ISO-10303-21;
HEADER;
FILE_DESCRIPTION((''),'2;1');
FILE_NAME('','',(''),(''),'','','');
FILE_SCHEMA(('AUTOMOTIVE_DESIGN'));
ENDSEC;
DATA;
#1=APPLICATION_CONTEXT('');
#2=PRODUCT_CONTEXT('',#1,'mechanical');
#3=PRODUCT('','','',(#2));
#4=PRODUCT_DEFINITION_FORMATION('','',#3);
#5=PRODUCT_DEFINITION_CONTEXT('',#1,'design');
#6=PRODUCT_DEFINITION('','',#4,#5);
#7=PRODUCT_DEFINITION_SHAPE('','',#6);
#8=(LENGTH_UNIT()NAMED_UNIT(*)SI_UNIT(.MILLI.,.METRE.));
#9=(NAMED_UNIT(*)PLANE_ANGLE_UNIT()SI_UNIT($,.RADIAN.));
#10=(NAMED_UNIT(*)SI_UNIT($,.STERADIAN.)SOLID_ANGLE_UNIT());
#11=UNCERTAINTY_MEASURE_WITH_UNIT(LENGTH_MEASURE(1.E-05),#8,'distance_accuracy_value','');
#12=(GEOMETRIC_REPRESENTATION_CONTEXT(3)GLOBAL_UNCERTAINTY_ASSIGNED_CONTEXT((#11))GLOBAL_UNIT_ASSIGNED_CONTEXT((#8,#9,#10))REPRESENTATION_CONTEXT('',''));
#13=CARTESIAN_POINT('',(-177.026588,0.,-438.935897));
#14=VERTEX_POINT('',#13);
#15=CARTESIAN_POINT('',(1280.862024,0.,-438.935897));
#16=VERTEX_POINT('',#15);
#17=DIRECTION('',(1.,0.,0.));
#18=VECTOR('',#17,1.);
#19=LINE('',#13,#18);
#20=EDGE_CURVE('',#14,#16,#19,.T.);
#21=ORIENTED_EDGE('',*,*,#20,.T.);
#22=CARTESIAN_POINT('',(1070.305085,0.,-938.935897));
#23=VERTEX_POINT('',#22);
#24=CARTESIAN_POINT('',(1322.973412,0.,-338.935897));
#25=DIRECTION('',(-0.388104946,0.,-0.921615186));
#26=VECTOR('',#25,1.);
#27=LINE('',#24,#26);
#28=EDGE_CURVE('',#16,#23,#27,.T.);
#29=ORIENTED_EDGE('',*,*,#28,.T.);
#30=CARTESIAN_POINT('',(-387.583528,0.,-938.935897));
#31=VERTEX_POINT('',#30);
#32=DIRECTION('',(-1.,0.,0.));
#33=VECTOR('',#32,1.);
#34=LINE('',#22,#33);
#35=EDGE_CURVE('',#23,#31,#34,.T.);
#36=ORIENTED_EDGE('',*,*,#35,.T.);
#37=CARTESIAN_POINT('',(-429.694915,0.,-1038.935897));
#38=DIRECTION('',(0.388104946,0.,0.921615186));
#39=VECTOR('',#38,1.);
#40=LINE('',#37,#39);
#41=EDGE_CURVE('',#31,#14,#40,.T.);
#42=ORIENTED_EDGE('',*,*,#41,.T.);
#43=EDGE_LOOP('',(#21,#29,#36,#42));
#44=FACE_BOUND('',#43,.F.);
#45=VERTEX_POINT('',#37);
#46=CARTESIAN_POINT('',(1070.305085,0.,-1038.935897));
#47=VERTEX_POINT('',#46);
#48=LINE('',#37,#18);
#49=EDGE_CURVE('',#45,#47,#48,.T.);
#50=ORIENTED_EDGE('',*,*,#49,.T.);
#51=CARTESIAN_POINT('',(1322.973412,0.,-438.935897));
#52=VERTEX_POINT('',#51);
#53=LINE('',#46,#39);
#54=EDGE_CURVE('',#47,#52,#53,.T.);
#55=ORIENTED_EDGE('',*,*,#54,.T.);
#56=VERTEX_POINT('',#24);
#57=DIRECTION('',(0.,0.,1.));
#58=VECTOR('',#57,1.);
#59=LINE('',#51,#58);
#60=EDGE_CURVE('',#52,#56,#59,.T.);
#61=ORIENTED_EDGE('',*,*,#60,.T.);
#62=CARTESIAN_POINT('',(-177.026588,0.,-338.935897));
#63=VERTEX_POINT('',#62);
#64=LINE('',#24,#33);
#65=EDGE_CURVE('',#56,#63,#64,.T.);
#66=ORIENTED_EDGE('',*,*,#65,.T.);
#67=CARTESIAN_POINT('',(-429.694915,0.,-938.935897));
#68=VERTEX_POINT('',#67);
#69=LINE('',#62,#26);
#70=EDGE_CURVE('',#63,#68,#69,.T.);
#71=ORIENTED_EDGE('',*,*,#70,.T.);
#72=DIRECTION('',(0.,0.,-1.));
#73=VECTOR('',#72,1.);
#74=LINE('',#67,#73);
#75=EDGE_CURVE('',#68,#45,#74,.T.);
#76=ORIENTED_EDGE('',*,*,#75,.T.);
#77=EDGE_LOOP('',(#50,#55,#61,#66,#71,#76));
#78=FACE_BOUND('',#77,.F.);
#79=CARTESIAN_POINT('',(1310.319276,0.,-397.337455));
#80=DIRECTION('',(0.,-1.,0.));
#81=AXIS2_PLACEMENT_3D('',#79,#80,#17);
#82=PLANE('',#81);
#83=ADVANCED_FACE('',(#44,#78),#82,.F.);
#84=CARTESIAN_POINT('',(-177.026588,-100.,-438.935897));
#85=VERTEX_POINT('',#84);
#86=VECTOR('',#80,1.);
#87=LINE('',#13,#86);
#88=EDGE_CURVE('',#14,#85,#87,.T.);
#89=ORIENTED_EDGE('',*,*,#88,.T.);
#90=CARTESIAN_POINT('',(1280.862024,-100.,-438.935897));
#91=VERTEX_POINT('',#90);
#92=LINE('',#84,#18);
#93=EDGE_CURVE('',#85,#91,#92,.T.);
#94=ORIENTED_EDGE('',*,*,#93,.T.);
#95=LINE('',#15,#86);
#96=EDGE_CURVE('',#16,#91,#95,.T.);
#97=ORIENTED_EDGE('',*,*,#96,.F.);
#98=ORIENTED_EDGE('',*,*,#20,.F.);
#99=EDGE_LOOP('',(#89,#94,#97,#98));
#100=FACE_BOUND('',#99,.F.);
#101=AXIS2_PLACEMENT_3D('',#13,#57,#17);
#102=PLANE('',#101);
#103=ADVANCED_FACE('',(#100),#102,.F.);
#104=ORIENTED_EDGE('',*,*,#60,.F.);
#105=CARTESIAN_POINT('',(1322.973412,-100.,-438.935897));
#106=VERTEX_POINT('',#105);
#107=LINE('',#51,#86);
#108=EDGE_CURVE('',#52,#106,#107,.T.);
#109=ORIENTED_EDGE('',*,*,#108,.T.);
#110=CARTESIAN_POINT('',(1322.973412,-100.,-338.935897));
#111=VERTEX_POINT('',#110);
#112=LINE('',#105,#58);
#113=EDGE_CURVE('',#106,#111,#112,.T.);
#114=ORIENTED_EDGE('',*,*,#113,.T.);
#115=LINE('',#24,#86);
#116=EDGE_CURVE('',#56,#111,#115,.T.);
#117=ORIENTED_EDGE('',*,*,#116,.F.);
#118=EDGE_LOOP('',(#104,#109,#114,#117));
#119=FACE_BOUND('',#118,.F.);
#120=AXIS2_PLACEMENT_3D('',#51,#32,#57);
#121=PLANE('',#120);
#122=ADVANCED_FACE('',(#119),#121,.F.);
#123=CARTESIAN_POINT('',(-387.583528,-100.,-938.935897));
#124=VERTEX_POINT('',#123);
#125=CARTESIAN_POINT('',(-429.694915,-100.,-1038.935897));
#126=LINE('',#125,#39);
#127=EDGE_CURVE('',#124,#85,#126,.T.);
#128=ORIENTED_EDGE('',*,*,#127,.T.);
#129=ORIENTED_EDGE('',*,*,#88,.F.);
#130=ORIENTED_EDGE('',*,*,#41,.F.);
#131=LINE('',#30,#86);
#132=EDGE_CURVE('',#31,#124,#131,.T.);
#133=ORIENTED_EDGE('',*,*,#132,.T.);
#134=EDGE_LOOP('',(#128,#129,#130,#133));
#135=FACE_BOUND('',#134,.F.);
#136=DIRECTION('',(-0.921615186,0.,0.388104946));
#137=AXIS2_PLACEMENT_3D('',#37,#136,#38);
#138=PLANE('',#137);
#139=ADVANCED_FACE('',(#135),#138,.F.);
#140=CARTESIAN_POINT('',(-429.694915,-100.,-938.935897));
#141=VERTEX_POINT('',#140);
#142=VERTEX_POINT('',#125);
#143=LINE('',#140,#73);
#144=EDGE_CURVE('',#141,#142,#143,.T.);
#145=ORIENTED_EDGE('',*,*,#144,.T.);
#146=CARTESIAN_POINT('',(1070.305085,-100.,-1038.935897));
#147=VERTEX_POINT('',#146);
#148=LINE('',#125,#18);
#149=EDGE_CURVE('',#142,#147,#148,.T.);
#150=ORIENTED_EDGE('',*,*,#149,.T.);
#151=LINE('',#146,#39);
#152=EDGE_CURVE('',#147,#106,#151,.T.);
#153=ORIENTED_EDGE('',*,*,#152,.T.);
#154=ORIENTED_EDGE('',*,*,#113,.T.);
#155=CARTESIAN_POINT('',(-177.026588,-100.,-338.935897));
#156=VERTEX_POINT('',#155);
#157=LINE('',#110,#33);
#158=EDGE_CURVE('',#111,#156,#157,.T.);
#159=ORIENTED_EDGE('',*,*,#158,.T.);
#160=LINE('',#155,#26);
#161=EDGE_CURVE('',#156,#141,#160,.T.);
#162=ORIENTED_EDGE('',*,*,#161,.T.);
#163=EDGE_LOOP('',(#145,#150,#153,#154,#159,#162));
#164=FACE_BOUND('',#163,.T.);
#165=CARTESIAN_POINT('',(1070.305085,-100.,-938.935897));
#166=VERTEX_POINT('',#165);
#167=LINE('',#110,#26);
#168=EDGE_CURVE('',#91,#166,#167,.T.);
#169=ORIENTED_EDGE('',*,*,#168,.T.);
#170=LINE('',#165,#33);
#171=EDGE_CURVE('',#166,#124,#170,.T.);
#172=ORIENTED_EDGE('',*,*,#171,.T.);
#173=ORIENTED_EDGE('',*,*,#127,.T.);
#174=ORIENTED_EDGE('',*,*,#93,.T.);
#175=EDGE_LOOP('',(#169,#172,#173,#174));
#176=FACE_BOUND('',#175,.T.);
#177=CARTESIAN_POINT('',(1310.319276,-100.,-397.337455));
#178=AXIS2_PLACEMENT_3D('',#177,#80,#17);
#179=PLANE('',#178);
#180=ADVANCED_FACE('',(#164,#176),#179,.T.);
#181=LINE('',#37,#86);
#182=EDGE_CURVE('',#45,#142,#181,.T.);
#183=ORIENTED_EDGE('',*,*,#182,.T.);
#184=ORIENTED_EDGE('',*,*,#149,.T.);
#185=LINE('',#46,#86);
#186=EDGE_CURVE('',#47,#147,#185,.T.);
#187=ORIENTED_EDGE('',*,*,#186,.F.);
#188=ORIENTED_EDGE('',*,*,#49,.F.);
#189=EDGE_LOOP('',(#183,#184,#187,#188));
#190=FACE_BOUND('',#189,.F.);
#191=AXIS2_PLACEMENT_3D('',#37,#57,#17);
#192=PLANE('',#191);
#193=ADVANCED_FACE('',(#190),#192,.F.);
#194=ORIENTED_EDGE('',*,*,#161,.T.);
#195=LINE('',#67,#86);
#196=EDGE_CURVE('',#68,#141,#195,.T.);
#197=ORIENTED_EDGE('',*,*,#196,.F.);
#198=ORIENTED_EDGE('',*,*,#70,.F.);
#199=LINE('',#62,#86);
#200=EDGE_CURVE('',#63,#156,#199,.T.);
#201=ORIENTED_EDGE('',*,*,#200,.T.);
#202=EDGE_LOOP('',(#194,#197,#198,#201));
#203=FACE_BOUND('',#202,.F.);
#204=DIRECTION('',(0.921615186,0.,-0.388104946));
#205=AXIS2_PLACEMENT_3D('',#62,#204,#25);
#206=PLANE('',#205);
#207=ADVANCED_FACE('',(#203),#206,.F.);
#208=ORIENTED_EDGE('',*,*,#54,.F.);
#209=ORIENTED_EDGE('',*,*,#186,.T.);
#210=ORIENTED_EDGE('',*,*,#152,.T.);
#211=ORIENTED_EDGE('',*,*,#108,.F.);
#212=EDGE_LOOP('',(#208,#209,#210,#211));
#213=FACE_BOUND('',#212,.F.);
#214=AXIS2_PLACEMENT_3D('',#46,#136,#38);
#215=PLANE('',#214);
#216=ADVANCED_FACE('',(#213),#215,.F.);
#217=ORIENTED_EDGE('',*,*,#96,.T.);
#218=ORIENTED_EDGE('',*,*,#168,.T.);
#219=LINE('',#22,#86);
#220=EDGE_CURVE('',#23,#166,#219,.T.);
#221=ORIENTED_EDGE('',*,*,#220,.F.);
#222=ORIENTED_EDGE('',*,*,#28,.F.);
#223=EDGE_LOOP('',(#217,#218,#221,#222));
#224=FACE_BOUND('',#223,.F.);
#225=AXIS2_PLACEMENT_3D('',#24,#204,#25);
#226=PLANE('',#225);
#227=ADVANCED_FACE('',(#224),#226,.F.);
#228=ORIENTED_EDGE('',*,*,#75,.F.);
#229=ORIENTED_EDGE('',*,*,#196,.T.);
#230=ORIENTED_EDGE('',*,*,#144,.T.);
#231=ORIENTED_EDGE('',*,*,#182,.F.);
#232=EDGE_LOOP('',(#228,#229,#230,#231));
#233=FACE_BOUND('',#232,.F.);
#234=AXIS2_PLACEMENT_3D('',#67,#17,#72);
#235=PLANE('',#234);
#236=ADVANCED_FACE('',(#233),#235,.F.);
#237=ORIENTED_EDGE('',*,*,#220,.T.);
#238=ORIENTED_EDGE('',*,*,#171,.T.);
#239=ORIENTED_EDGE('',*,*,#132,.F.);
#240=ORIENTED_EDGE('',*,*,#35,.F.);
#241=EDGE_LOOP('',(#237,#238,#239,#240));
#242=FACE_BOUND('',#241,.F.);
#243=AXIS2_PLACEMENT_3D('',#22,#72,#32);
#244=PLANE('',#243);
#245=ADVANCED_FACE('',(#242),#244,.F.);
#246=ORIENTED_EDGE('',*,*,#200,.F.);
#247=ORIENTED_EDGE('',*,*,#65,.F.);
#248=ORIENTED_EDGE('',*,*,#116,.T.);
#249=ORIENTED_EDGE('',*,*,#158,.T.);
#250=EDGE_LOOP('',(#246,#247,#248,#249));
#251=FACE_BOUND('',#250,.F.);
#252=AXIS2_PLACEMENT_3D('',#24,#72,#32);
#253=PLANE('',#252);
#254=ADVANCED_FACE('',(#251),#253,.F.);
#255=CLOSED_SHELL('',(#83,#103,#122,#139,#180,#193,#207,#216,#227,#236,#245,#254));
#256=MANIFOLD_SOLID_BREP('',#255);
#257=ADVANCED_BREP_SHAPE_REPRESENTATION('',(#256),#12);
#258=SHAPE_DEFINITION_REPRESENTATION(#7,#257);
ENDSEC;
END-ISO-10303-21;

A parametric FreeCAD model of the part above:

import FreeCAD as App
import Part
import Sketcher
from FreeCAD import Vector
Q = App.Units.Quantity


def add_polygon(sketch, points):
    """Adds a closed chain of lines whose ends are joined by coincident constraints."""
    first, n = sketch.GeometryCount, len(points)
    for a, b in zip(points, points[1:] + points[:1]):
        sketch.addGeometry(Part.LineSegment(App.Vector(*a, 0), App.Vector(*b, 0)), False)
    for i in range(n):
        sketch.addConstraint(Sketcher.Constraint("Coincident", first + i, 2, first + (i + 1) % n, 1))

doc = App.newDocument("Part")
body = doc.addObject("PartDesign::Body", "Body")

sketch1 = body.newObject("Sketcher::SketchObject", "Sketch")
sketch1.AttachmentSupport = (doc.getObject("XZ_Plane"), [""])
sketch1.MapMode = "FlatFace"
add_polygon(sketch1, [(-177, -439), (1281, -439), (1323, -339), (-177, -339)])
sketch1.addConstraint(Sketcher.Constraint("Horizontal", 0))
sketch1.addConstraint(Sketcher.Constraint("Horizontal", 2))
sketch1.addConstraint(Sketcher.Constraint("Vertical", 3))
sketch1.addConstraint(Sketcher.Constraint("DistanceX", 2, 2, 2, 1, Q("1500 mm")))
sketch1.addConstraint(Sketcher.Constraint("DistanceY", 3, 2, 3, 1, Q("100 mm")))
sketch1.addConstraint(Sketcher.Constraint("DistanceX", 0, 1, 0, 2, Q("1457.888612 mm")))
sketch1.addConstraint(Sketcher.Constraint("DistanceX", -1, 1, 0, 2, Q("1280.862024 mm")))
sketch1.addConstraint(Sketcher.Constraint("DistanceY", 0, 2, -1, 1, Q("438.935897 mm")))
pad1 = body.newObject("PartDesign::Pad", "Pad")
pad1.Profile = sketch1
pad1.Length = 100

sketch2 = body.newObject("Sketcher::SketchObject", "Sketch001")
sketch2.AttachmentSupport = (doc.getObject("XZ_Plane"), [""])
sketch2.MapMode = "FlatFace"
add_polygon(sketch2, [(-177, -339), (-430, -939), (-430, -1039), (-177, -439)])
sketch2.addConstraint(Sketcher.Constraint("Vertical", 1))
sketch2.addConstraint(Sketcher.Constraint("Vertical", 3))
sketch2.addConstraint(Sketcher.Constraint("Parallel", 0, 2))
sketch2.addConstraint(Sketcher.Constraint("DistanceY", 1, 2, 1, 1, Q("100 mm")))
sketch2.addConstraint(Sketcher.Constraint("DistanceY", 0, 2, 2, 2, Q("500 mm")))
sketch2.addConstraint(Sketcher.Constraint("Distance", 0, Q("651.030939 mm")))
sketch2.addConstraint(Sketcher.Constraint("DistanceX", 0, 2, -1, 1, Q("429.694915 mm")))
sketch2.addConstraint(Sketcher.Constraint("DistanceY", 0, 2, -1, 1, Q("938.935897 mm")))
pad2 = body.newObject("PartDesign::Pad", "Pad001")
pad2.Profile = sketch2
pad2.Length = 100

sketch3 = body.newObject("Sketcher::SketchObject", "Sketch002")
sketch3.AttachmentSupport = (doc.getObject("XZ_Plane"), [""])
sketch3.MapMode = "FlatFace"
add_polygon(sketch3, [(1323, -439), (1323, -339), (1070, -939), (-388, -939), (-430, -1039), (1070, -1039)])
sketch3.addConstraint(Sketcher.Constraint("Vertical", 0))
sketch3.addConstraint(Sketcher.Constraint("Horizontal", 2))
sketch3.addConstraint(Sketcher.Constraint("Horizontal", 4))
sketch3.addConstraint(Sketcher.Constraint("Parallel", 1, 3))
sketch3.addConstraint(Sketcher.Constraint("Parallel", 3, 5))
sketch3.addConstraint(Sketcher.Constraint("Vertical", 1, 2, 4, 2))
sketch3.addConstraint(Sketcher.Constraint("DistanceX", 4, 1, 4, 2, Q("1500 mm")))
sketch3.addConstraint(Sketcher.Constraint("DistanceY", 0, 1, 0, 2, Q("100 mm")))
sketch3.addConstraint(Sketcher.Constraint("DistanceY", 1, 2, 0, 2, Q("600 mm")))
sketch3.addConstraint(Sketcher.Constraint("Distance", 1, Q("651.030939 mm")))
sketch3.addConstraint(Sketcher.Constraint("DistanceX", -1, 1, 0, 2, Q("1322.973412 mm")))
sketch3.addConstraint(Sketcher.Constraint("DistanceY", 0, 2, -1, 1, Q("338.935897 mm")))
pad3 = body.newObject("PartDesign::Pad", "Pad002")
pad3.Profile = sketch3
pad3.Length = 100

doc.recompute()
